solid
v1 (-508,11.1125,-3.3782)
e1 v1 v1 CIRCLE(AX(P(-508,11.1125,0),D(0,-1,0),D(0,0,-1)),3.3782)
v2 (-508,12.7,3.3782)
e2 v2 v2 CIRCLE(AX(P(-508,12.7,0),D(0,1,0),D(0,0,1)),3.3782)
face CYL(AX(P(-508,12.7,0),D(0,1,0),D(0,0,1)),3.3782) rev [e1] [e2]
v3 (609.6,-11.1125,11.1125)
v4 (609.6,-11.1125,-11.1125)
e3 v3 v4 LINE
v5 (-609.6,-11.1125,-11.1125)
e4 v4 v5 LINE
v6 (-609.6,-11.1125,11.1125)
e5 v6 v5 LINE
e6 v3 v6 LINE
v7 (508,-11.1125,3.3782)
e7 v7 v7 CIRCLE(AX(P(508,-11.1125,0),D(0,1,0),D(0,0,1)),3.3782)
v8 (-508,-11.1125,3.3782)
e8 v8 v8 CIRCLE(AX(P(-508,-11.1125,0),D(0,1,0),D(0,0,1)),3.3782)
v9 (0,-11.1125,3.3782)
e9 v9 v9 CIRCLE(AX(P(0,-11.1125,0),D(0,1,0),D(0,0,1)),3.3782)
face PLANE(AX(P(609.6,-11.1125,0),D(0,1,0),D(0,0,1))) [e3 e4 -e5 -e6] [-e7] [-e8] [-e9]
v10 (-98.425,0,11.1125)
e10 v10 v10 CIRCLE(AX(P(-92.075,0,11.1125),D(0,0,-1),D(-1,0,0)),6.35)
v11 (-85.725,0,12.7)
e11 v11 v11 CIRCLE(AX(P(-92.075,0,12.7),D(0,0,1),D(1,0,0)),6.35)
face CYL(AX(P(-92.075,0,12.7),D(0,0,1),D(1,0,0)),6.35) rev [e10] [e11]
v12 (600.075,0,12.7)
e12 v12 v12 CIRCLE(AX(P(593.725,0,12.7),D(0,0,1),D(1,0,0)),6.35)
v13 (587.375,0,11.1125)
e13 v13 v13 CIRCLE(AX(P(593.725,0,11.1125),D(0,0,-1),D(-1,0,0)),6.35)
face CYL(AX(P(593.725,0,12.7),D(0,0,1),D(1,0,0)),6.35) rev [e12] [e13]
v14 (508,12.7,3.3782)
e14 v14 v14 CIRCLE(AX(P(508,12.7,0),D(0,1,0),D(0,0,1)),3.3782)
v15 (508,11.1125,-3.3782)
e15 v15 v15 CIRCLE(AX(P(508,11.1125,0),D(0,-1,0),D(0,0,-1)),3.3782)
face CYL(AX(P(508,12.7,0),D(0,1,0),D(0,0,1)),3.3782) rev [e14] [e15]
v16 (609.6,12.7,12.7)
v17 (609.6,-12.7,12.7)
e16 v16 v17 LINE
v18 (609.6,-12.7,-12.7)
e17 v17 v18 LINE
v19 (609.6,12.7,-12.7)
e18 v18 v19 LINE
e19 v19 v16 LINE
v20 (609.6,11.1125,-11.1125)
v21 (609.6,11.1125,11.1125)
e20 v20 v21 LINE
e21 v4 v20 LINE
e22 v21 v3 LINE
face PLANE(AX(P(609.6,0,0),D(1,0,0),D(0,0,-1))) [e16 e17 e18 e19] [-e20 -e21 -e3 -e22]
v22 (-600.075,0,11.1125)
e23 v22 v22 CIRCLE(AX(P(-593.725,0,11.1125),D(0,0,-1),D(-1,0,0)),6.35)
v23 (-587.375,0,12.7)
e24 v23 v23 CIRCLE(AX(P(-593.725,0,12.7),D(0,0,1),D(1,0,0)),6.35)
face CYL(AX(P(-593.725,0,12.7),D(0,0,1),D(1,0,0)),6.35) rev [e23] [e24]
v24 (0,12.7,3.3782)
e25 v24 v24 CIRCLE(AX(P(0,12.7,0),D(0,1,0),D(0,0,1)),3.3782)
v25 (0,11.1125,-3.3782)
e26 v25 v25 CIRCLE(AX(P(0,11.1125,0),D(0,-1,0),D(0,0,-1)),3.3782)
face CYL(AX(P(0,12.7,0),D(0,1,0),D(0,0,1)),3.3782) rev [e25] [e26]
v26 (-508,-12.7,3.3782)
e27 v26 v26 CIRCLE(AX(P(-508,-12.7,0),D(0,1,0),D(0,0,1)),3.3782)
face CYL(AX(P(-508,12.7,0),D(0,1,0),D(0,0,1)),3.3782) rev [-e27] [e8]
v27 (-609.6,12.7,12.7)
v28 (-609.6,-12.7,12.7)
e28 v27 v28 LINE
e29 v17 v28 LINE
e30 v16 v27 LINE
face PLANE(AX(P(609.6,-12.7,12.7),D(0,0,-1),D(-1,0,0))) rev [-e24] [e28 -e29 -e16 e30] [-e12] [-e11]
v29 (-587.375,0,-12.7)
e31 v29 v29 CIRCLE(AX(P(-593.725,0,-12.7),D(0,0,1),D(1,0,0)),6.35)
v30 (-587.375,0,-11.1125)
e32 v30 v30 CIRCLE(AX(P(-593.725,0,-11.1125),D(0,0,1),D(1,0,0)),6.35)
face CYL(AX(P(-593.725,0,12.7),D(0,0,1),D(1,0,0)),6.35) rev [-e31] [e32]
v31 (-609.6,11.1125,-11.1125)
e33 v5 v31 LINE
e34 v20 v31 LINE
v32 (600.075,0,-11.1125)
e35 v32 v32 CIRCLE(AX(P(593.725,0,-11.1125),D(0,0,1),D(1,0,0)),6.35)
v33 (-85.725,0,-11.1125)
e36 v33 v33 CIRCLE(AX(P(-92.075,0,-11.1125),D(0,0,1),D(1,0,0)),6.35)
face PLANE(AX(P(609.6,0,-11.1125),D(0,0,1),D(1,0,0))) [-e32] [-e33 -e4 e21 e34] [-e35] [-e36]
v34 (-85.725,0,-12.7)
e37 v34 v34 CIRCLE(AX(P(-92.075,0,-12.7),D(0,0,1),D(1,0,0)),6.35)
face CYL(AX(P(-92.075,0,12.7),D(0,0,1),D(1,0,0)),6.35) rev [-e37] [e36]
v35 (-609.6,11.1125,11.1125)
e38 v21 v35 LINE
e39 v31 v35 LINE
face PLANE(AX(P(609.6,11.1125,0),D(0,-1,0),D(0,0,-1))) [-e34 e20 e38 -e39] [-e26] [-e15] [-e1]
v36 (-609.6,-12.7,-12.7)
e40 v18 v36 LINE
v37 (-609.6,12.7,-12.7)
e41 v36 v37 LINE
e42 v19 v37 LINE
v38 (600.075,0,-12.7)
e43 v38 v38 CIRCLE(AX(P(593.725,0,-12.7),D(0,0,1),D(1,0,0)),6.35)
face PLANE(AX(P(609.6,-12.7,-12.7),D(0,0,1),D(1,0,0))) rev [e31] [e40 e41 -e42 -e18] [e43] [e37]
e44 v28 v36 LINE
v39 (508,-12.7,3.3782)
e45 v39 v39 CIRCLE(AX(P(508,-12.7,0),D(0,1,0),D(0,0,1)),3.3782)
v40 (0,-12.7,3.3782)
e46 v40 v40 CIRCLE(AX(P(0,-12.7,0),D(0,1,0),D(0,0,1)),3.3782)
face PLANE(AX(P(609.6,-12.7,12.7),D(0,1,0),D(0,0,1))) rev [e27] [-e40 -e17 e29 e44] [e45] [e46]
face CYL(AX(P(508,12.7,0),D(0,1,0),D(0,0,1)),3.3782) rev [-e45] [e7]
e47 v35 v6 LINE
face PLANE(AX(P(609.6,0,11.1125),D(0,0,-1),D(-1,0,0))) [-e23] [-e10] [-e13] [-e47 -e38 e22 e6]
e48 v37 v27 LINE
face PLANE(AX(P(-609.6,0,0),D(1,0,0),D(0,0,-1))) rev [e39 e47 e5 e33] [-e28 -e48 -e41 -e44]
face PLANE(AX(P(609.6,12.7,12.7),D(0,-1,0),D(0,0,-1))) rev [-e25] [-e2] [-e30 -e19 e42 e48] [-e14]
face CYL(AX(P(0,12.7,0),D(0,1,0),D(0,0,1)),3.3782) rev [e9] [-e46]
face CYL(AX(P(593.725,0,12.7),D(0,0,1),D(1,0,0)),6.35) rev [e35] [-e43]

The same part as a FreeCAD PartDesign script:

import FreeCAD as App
import Part
import Sketcher

V = App.Vector
Q = App.Units.Quantity


def add_polygon(sketch, points):
    """Adds a closed chain of lines whose ends are joined by coincident constraints."""
    first, n = sketch.GeometryCount, len(points)
    for a, b in zip(points, points[1:] + points[:1]):
        sketch.addGeometry(Part.LineSegment(App.Vector(*a, 0), App.Vector(*b, 0)), False)
    for i in range(n):
        sketch.addConstraint(Sketcher.Constraint("Coincident", first + i, 2, first + (i + 1) % n, 1))

doc = App.newDocument("Part")
body = doc.addObject("PartDesign::Body", "Body")

# Sketch on YZ plane
sketch1 = body.newObject("Sketcher::SketchObject", "Sketch")
sketch1.AttachmentSupport = (doc.getObject("YZ_Plane"), [""])
sketch1.MapMode = "FlatFace"
add_polygon(sketch1, [(13, 13), (-13, 13), (-13, -13), (13, -13)])  # lines 0-3
add_polygon(sketch1, [(-11, -11), (-11, 11), (11, 11), (11, -11)])  # lines 4-7
sketch1.addConstraint(Sketcher.Constraint("Horizontal", 0))
sketch1.addConstraint(Sketcher.Constraint("Vertical", 1))
sketch1.addConstraint(Sketcher.Constraint("Horizontal", 2))
sketch1.addConstraint(Sketcher.Constraint("Vertical", 3))
sketch1.addConstraint(Sketcher.Constraint("Vertical", 4))
sketch1.addConstraint(Sketcher.Constraint("Horizontal", 5))
sketch1.addConstraint(Sketcher.Constraint("Vertical", 6))
sketch1.addConstraint(Sketcher.Constraint("Horizontal", 7))
sketch1.addConstraint(Sketcher.Constraint("Symmetric", 0, 2, 2, 2, -1, 1))
sketch1.addConstraint(Sketcher.Constraint("Symmetric", 4, 2, 6, 2, -1, 1))
sketch1.addConstraint(Sketcher.Constraint("Equal", 2, 1))
sketch1.addConstraint(Sketcher.Constraint("Equal", 7, 4))
sketch1.addConstraint(Sketcher.Constraint("DistanceX", 0, 2, 0, 1, Q("1 in")))
sketch1.addConstraint(Sketcher.Constraint("DistanceX", 5, 1, 5, 2, Q("0.875 in")))
pad1 = body.newObject("PartDesign::Pad", "Pad")
pad1.Profile = sketch1
pad1.Length = Q("48 in")
pad1.Midplane = True

# Sketch on XY plane
sketch2 = body.newObject("Sketcher::SketchObject", "Sketch001")
sketch2.AttachmentSupport = (doc.getObject("XY_Plane"), [""])
sketch2.MapMode = "FlatFace"
sketch2.AttachmentOffset = App.Placement(V(0, 0, 0.5 * 25.4), App.Rotation())
sketch2.addGeometry(Part.Circle(V(-594, 0, 0), V(0, 0, 1), 6), False)
sketch2.addGeometry(Part.Circle(V(594, 0, 0), V(0, 0, 1), 6), False)
sketch2.addGeometry(Part.Circle(V(-92, 0, 0), V(0, 0, 1), 6), False)
sketch2.addConstraint(Sketcher.Constraint("Equal", 0, 1))
sketch2.addConstraint(Sketcher.Constraint("Equal", 1, 2))
sketch2.addConstraint(Sketcher.Constraint("Symmetric", 0, 3, 1, 3, -1, 1))
sketch2.addConstraint(Sketcher.Constraint("PointOnObject", 0, 3, -1))
sketch2.addConstraint(Sketcher.Constraint("PointOnObject", 2, 3, -1))
sketch2.addConstraint(Sketcher.Constraint("Diameter", 0, Q("0.5 in")))
sketch2.addConstraint(Sketcher.Constraint("DistanceX", 2, 3, 1, 3, Q("27 in")))
sketch2.addConstraint(Sketcher.Constraint("DistanceX", 0, 3, 1, 3, Q("46.75 in")))
doc.recompute()
hole = body.newObject("PartDesign::Hole", "Hole")
hole.Profile = sketch2
hole.ThreadType = "None"
hole.Diameter = Q("0.5 in")
hole.DepthType = "ThroughAll"

# Sketch on XZ plane
sketch3 = body.newObject("Sketcher::SketchObject", "Sketch002")
sketch3.AttachmentSupport = (doc.getObject("XZ_Plane"), [""])
sketch3.MapMode = "FlatFace"
sketch3.AttachmentOffset = App.Placement(V(0, 0, -0.5 * 25.4), App.Rotation())
sketch3.addGeometry(Part.Circle(V(-508, 0, 0), V(0, 0, 1), 3.4), False)
sketch3.addGeometry(Part.Circle(V(0, 0, 0), V(0, 0, 1), 3.4), False)
sketch3.addGeometry(Part.Circle(V(508, 0, 0), V(0, 0, 1), 3.4), False)
sketch3.addConstraint(Sketcher.Constraint("Coincident", 1, 3, -1, 1))
sketch3.addConstraint(Sketcher.Constraint("Equal", 0, 1))
sketch3.addConstraint(Sketcher.Constraint("Equal", 1, 2))
sketch3.addConstraint(Sketcher.Constraint("Symmetric", 0, 3, 2, 3, -1, 1))
sketch3.addConstraint(Sketcher.Constraint("PointOnObject", 0, 3, -1))
sketch3.addConstraint(Sketcher.Constraint("Diameter", 0, Q("0.266 in")))
sketch3.addConstraint(Sketcher.Constraint("DistanceX", 0, 3, -1, 1, Q("20 in")))
doc.recompute()
hole2 = body.newObject("PartDesign::Hole", "Hole001")
hole2.Profile = sketch3
hole2.ThreadType = "None"
hole2.Diameter = Q("0.266 in")
hole2.DepthType = "ThroughAll"
hole2.Reversed = True

doc.recompute()
